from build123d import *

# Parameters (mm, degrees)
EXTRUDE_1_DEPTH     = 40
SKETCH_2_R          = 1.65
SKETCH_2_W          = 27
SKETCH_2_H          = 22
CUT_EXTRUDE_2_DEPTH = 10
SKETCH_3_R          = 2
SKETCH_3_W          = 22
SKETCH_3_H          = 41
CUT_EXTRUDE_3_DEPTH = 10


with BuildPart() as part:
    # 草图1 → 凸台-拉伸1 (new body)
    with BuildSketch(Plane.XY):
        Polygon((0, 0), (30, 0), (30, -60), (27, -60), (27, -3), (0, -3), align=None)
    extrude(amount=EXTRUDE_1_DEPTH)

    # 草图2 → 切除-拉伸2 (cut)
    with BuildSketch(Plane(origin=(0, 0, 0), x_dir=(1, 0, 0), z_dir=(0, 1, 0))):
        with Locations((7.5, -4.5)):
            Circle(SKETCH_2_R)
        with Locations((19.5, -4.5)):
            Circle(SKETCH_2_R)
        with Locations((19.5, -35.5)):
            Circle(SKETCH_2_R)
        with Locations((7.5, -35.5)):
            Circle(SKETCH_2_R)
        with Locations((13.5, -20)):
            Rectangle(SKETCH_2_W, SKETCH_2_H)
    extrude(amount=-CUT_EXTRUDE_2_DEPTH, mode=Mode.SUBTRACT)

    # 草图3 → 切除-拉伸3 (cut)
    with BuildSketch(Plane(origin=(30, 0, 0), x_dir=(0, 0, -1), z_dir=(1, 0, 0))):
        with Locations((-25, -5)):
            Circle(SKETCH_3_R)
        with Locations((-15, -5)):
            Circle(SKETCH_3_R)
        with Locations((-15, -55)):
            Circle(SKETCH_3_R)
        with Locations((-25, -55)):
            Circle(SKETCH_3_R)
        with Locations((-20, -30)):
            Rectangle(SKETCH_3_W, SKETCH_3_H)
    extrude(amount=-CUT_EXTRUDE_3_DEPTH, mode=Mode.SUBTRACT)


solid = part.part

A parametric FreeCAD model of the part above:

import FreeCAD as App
import Part
import Sketcher
from FreeCAD import Vector

doc = App.newDocument("Part")
params = doc.addObject("Spreadsheet::Sheet", "Params")
for row, (alias, value) in enumerate([
    ("sketch1_width", "30 mm"),
    ("sketch1_width2", "27 mm"),
    ("sketch1_height", "57 mm"),
    ("pad1_length", "40 mm"),
    ("sketch2_diameter", "3.3 mm"),
    ("sketch2_width", "27 mm"),
    ("sketch2_height", "22 mm"),
    ("pocket1_length", "10 mm"),
    ("sketch3_diameter", "4 mm"),
    ("sketch3_width", "41 mm"),
    ("sketch3_height", "22 mm"),
    ("pocket2_length", "10 mm"),
], start=1):
    params.set(f"A{row}", alias)
    params.set(f"B{row}", "=" + value)
    params.setAlias(f"B{row}", alias)

body = doc.addObject("PartDesign::Body", "Body")

# Sketch on XY plane
sketch1 = body.newObject("Sketcher::SketchObject", "Sketch")
sketch1.AttachmentSupport = (doc.getObject("XY_Plane"), [""])
sketch1.MapMode = "FlatFace"
sketch1.addGeometry(Part.LineSegment(Vector(30, 0, 0), Vector(0, 0, 0)), False)
sketch1.addGeometry(Part.LineSegment(Vector(0, 0, 0), Vector(0, -3, 0)), False)
sketch1.addGeometry(Part.LineSegment(Vector(0, -3, 0), Vector(27, -3, 0)), False)
sketch1.addGeometry(Part.LineSegment(Vector(27, -3, 0), Vector(27, -60, 0)), False)
sketch1.addGeometry(Part.LineSegment(Vector(27, -60, 0), Vector(30, -60, 0)), False)
sketch1.addGeometry(Part.LineSegment(Vector(30, -60, 0), Vector(30, 0, 0)), False)
sketch1.addConstraint(Sketcher.Constraint("Coincident", 0, 2, 1, 1))
sketch1.addConstraint(Sketcher.Constraint("Coincident", 1, 2, 2, 1))
sketch1.addConstraint(Sketcher.Constraint("Coincident", 2, 2, 3, 1))
sketch1.addConstraint(Sketcher.Constraint("Coincident", 3, 2, 4, 1))
sketch1.addConstraint(Sketcher.Constraint("Coincident", 4, 2, 5, 1))
sketch1.addConstraint(Sketcher.Constraint("Coincident", 5, 2, 0, 1))
sketch1.addConstraint(Sketcher.Constraint("Horizontal", 0))
sketch1.addConstraint(Sketcher.Constraint("Vertical", 1))
sketch1.addConstraint(Sketcher.Constraint("Horizontal", 2))
sketch1.addConstraint(Sketcher.Constraint("Vertical", 3))
sketch1.addConstraint(Sketcher.Constraint("Horizontal", 4))
sketch1.addConstraint(Sketcher.Constraint("Vertical", 5))
sketch1.addConstraint(Sketcher.Constraint("Coincident", 0, 2, -1, 1))
sketch1.addConstraint(Sketcher.Constraint("Equal", 4, 1))
sketch1.addConstraint(Sketcher.Constraint("DistanceX", 0, 2, 0, 1, 30.0))
sketch1.addConstraint(Sketcher.Constraint("DistanceX", 2, 1, 2, 2, 27.0))
sketch1.addConstraint(Sketcher.Constraint("DistanceY", 3, 2, 3, 1, 57.0))
sketch1.setExpression("Constraints[14]", "Params.sketch1_width")
sketch1.setExpression("Constraints[15]", "Params.sketch1_width2")
sketch1.setExpression("Constraints[16]", "Params.sketch1_height")
pad1 = body.newObject("PartDesign::Pad", "Pad")
pad1.Profile = sketch1
pad1.setExpression("Length", "Params.pad1_length")

# Sketch on XZ plane
sketch2 = body.newObject("Sketcher::SketchObject", "Sketch001")
sketch2.AttachmentSupport = (doc.getObject("XZ_Plane"), [""])
sketch2.MapMode = "FlatFace"
sketch2.addGeometry(Part.Circle(Vector(7.5, 4.5, 0), Vector(0, 0, 1), 1.6), False)
sketch2.addGeometry(Part.Circle(Vector(19.5, 4.5, 0), Vector(0, 0, 1), 1.6), False)
sketch2.addGeometry(Part.Circle(Vector(19.5, 35.5, 0), Vector(0, 0, 1), 1.6), False)
sketch2.addGeometry(Part.Circle(Vector(7.5, 35.5, 0), Vector(0, 0, 1), 1.6), False)
sketch2.addGeometry(Part.LineSegment(Vector(0, 9, 0), Vector(0, 31, 0)), False)
sketch2.addGeometry(Part.LineSegment(Vector(0, 31, 0), Vector(27, 31, 0)), False)
sketch2.addGeometry(Part.LineSegment(Vector(27, 31, 0), Vector(27, 9, 0)), False)
sketch2.addGeometry(Part.LineSegment(Vector(27, 9, 0), Vector(0, 9, 0)), False)
sketch2.addConstraint(Sketcher.Constraint("Coincident", 4, 2, 5, 1))
sketch2.addConstraint(Sketcher.Constraint("Coincident", 5, 2, 6, 1))
sketch2.addConstraint(Sketcher.Constraint("Coincident", 6, 2, 7, 1))
sketch2.addConstraint(Sketcher.Constraint("Coincident", 7, 2, 4, 1))
sketch2.addConstraint(Sketcher.Constraint("Vertical", 4))
sketch2.addConstraint(Sketcher.Constraint("Horizontal", 5))
sketch2.addConstraint(Sketcher.Constraint("Vertical", 6))
sketch2.addConstraint(Sketcher.Constraint("Horizontal", 7))
sketch2.addConstraint(Sketcher.Constraint("Equal", 0, 1))
sketch2.addConstraint(Sketcher.Constraint("Equal", 1, 2))
sketch2.addConstraint(Sketcher.Constraint("Equal", 2, 3))
sketch2.addConstraint(Sketcher.Constraint("PointOnObject", 4, 2, -2))
sketch2.addConstraint(Sketcher.Constraint("Horizontal", 0, 3, 1, 3))
sketch2.addConstraint(Sketcher.Constraint("Horizontal", 2, 3, 3, 3))
sketch2.addConstraint(Sketcher.Constraint("Vertical", 1, 3, 2, 3))
sketch2.addConstraint(Sketcher.Constraint("Vertical", 0, 3, 3, 3))
sketch2.addConstraint(Sketcher.Constraint("Diameter", 0, 3.3))
sketch2.addConstraint(Sketcher.Constraint("DistanceX", 5, 1, 5, 2, 27.0))
sketch2.addConstraint(Sketcher.Constraint("DistanceY", 4, 1, 4, 2, 22.0))
sketch2.addConstraint(Sketcher.Constraint("DistanceY", -1, 1, 4, 2, 31.0))
sketch2.addConstraint(Sketcher.Constraint("DistanceX", 0, 3, 1, 3, 12.0))
sketch2.addConstraint(Sketcher.Constraint("DistanceY", 1, 3, 2, 3, 31.0))
sketch2.addConstraint(Sketcher.Constraint("DistanceX", -1, 1, 0, 3, 7.5))
sketch2.addConstraint(Sketcher.Constraint("DistanceY", -1, 1, 0, 3, 4.5))
sketch2.setExpression("Constraints[16]", "Params.sketch2_diameter")
sketch2.setExpression("Constraints[17]", "Params.sketch2_width")
sketch2.setExpression("Constraints[18]", "Params.sketch2_height")
pocket1 = body.newObject("PartDesign::Pocket", "Pocket")
pocket1.Profile = sketch2
pocket1.setExpression("Length", "Params.pocket1_length")
pocket1.Reversed = True

# Sketch on YZ plane
sketch3 = body.newObject("Sketcher::SketchObject", "Sketch002")
sketch3.AttachmentSupport = (doc.getObject("YZ_Plane"), [""])
sketch3.MapMode = "FlatFace"
sketch3.AttachmentOffset = App.Placement(Vector(0, 0, 30), App.Rotation())
sketch3.addGeometry(Part.Circle(Vector(-5, 25, 0), Vector(0, 0, 1), 2), False)
sketch3.addGeometry(Part.Circle(Vector(-5, 15, 0), Vector(0, 0, 1), 2), False)
sketch3.addGeometry(Part.Circle(Vector(-55, 15, 0), Vector(0, 0, 1), 2), False)
sketch3.addGeometry(Part.Circle(Vector(-55, 25, 0), Vector(0, 0, 1), 2), False)
sketch3.addGeometry(Part.LineSegment(Vector(-9.5, 31, 0), Vector(-50.5, 31, 0)), False)
sketch3.addGeometry(Part.LineSegment(Vector(-50.5, 31, 0), Vector(-50.5, 9, 0)), False)
sketch3.addGeometry(Part.LineSegment(Vector(-50.5, 9, 0), Vector(-9.5, 9, 0)), False)
sketch3.addGeometry(Part.LineSegment(Vector(-9.5, 9, 0), Vector(-9.5, 31, 0)), False)
sketch3.addConstraint(Sketcher.Constraint("Coincident", 4, 2, 5, 1))
sketch3.addConstraint(Sketcher.Constraint("Coincident", 5, 2, 6, 1))
sketch3.addConstraint(Sketcher.Constraint("Coincident", 6, 2, 7, 1))
sketch3.addConstraint(Sketcher.Constraint("Coincident", 7, 2, 4, 1))
sketch3.addConstraint(Sketcher.Constraint("Horizontal", 4))
sketch3.addConstraint(Sketcher.Constraint("Vertical", 5))
sketch3.addConstraint(Sketcher.Constraint("Horizontal", 6))
sketch3.addConstraint(Sketcher.Constraint("Vertical", 7))
sketch3.addConstraint(Sketcher.Constraint("Equal", 0, 1))
sketch3.addConstraint(Sketcher.Constraint("Equal", 1, 2))
sketch3.addConstraint(Sketcher.Constraint("Equal", 2, 3))
sketch3.addConstraint(Sketcher.Constraint("Horizontal", 1, 3, 2, 3))
sketch3.addConstraint(Sketcher.Constraint("Horizontal", 0, 3, 3, 3))
sketch3.addConstraint(Sketcher.Constraint("Vertical", 0, 3, 1, 3))
sketch3.addConstraint(Sketcher.Constraint("Vertical", 2, 3, 3, 3))
sketch3.addConstraint(Sketcher.Constraint("Diameter", 0, 4.0))
sketch3.addConstraint(Sketcher.Constraint("DistanceX", 4, 2, 4, 1, 41.0))
sketch3.addConstraint(Sketcher.Constraint("DistanceY", 5, 2, 5, 1, 22.0))
sketch3.addConstraint(Sketcher.Constraint("DistanceX", 0, 3, -1, 1, 5.0))
sketch3.addConstraint(Sketcher.Constraint("DistanceY", -1, 1, 0, 3, 25.0))
sketch3.addConstraint(Sketcher.Constraint("DistanceY", -1, 1, 1, 3, 15.0))
sketch3.addConstraint(Sketcher.Constraint("DistanceX", 2, 3, -1, 1, 55.0))
sketch3.addConstraint(Sketcher.Constraint("DistanceY", -1, 1, 4, 2, 31.0))
sketch3.addConstraint(Sketcher.Constraint("DistanceX", 4, 2, -1, 1, 50.5))
sketch3.setExpression("Constraints[15]", "Params.sketch3_diameter")
sketch3.setExpression("Constraints[16]", "Params.sketch3_width")
sketch3.setExpression("Constraints[17]", "Params.sketch3_height")
pocket2 = body.newObject("PartDesign::Pocket", "Pocket001")
pocket2.Profile = sketch3
pocket2.setExpression("Length", "Params.pocket2_length")

doc.recompute()
